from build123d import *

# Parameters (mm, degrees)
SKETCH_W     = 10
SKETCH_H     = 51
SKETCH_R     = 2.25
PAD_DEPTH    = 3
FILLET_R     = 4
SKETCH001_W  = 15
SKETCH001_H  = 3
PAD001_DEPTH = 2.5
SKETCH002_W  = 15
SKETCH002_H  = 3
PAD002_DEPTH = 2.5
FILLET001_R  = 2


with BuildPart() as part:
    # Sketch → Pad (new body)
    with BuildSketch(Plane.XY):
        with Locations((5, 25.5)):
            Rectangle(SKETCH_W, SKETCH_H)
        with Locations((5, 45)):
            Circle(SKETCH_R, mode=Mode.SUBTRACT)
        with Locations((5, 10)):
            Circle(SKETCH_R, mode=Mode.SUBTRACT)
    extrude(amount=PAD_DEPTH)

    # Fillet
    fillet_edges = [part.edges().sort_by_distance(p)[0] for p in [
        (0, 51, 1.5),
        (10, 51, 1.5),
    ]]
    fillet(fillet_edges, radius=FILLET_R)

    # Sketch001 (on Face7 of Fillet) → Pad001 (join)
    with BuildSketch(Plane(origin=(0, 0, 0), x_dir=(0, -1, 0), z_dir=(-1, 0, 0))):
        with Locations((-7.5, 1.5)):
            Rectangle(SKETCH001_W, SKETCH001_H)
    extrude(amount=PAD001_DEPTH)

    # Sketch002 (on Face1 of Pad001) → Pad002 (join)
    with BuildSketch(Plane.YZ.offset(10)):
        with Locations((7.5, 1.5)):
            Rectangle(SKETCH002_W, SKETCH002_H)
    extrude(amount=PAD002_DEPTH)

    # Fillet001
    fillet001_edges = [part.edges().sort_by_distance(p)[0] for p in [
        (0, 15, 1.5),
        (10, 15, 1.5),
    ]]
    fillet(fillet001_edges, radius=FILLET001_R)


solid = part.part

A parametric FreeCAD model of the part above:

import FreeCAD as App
import Part
import Sketcher
Q = App.Units.Quantity


def edges_at(feature, points):
    """Names of the edges that pass closest to the given points."""
    edges = feature.Shape.Edges
    near = lambda p: min(range(len(edges)), key=lambda i: edges[i].distToShape(Part.Vertex(*p))[0])
    return sorted({f"Edge{near(p) + 1}" for p in points})


def add_polygon(sketch, points):
    """Adds a closed chain of lines whose ends are joined by coincident constraints."""
    first, n = sketch.GeometryCount, len(points)
    for a, b in zip(points, points[1:] + points[:1]):
        sketch.addGeometry(Part.LineSegment(App.Vector(*a, 0), App.Vector(*b, 0)), False)
    for i in range(n):
        sketch.addConstraint(Sketcher.Constraint("Coincident", first + i, 2, first + (i + 1) % n, 1))

doc = App.newDocument("Part")
params = doc.addObject("Spreadsheet::Sheet", "Params")
for row, (alias, value) in enumerate([
    ("sketch1_diameter", "4.5 mm"),
    ("sketch1_width", "10 mm"),
    ("sketch1_height", "51 mm"),
    ("pad1_length", "3 mm"),
    ("fillet_radius", "4 mm"),
    ("sketch2_width", "15 mm"),
    ("sketch2_height", "3 mm"),
    ("pad2_length", "2.5 mm"),
    ("sketch3_width", "15 mm"),
    ("sketch3_height", "3 mm"),
    ("pad3_length", "2.5 mm"),
    ("fillet2_radius", "2 mm"),
], start=1):
    params.set(f"A{row}", alias)
    params.set(f"B{row}", "=" + value)
    params.setAlias(f"B{row}", alias)

body = doc.addObject("PartDesign::Body", "Body")

# Sketch on XY plane
sketch1 = body.newObject("Sketcher::SketchObject", "Sketch")
sketch1.AttachmentSupport = (doc.getObject("XY_Plane"), [""])
sketch1.MapMode = "FlatFace"
add_polygon(sketch1, [(0, 51), (0, 0), (10, 0), (10, 51)])  # lines 0-3
sketch1.addGeometry(Part.Circle(App.Vector(5, 10, 0), App.Vector(0, 0, 1), 2.25), False)  # 4
sketch1.addGeometry(Part.Circle(App.Vector(5, 45, 0), App.Vector(0, 0, 1), 2.25), False)  # 5
sketch1.addConstraint([
    Sketcher.Constraint("Vertical", 0),
    Sketcher.Constraint("Horizontal", 1),
    Sketcher.Constraint("Vertical", 2),
    Sketcher.Constraint("Horizontal", 3),
    Sketcher.Constraint("Coincident", 0, 2, -1, 1),
    Sketcher.Constraint("Equal", 4, 5),
    Sketcher.Constraint("Vertical", 4, 3, 5, 3),
    Sketcher.Constraint("Diameter", 4, Q("4.5 mm")),
    Sketcher.Constraint("DistanceX", 1, 1, 1, 2, Q("10 mm")),
    Sketcher.Constraint("DistanceY", 0, 2, 0, 1, Q("51 mm")),
    Sketcher.Constraint("DistanceX", -1, 1, 4, 3, Q("5 mm")),
    Sketcher.Constraint("DistanceY", -1, 1, 4, 3, Q("10 mm")),
    Sketcher.Constraint("DistanceY", -1, 1, 5, 3, Q("45 mm")),
])
sketch1.setExpression("Constraints[11]", "Params.sketch1_diameter")
sketch1.setExpression("Constraints[12]", "Params.sketch1_width")
sketch1.setExpression("Constraints[13]", "Params.sketch1_height")
pad1 = body.newObject("PartDesign::Pad", "Pad")
pad1.Profile = sketch1
pad1.setExpression("Length", "Params.pad1_length")
doc.recompute()

fillet = body.newObject("PartDesign::Fillet", "Fillet")
fillet.Base = (pad1, edges_at(pad1, [(0, 51, 1.5), (10, 51, 1.5)]))
fillet.setExpression("Radius", "Params.fillet_radius")

# Sketch on YZ plane
sketch2 = body.newObject("Sketcher::SketchObject", "Sketch001")
sketch2.AttachmentSupport = (doc.getObject("YZ_Plane"), [""])
sketch2.MapMode = "FlatFace"
add_polygon(sketch2, [(15, 3), (15, 0), (0, 0), (0, 3)])  # lines 0-3
sketch2.addConstraint([
    Sketcher.Constraint("Vertical", 0),
    Sketcher.Constraint("Horizontal", 1),
    Sketcher.Constraint("Vertical", 2),
    Sketcher.Constraint("Horizontal", 3),
    Sketcher.Constraint("Coincident", 1, 2, -1, 1),
    Sketcher.Constraint("DistanceX", 1, 2, 1, 1, Q("15 mm")),
    Sketcher.Constraint("DistanceY", 0, 2, 0, 1, Q("3 mm")),
])
sketch2.setExpression("Constraints[9]", "Params.sketch2_width")
sketch2.setExpression("Constraints[10]", "Params.sketch2_height")
pad2 = body.newObject("PartDesign::Pad", "Pad001")
pad2.Profile = sketch2
pad2.setExpression("Length", "Params.pad2_length")
pad2.Reversed = True

# Sketch on YZ plane
sketch3 = body.newObject("Sketcher::SketchObject", "Sketch002")
sketch3.AttachmentSupport = (doc.getObject("YZ_Plane"), [""])
sketch3.MapMode = "FlatFace"
sketch3.AttachmentOffset = App.Placement(App.Vector(0, 0, 10), App.Rotation())
add_polygon(sketch3, [(0, 3), (0, 0), (15, 0), (15, 3)])  # lines 0-3
sketch3.addConstraint([
    Sketcher.Constraint("Vertical", 0),
    Sketcher.Constraint("Horizontal", 1),
    Sketcher.Constraint("Vertical", 2),
    Sketcher.Constraint("Horizontal", 3),
    Sketcher.Constraint("Coincident", 0, 2, -1, 1),
    Sketcher.Constraint("DistanceX", 1, 1, 1, 2, Q("15 mm")),
    Sketcher.Constraint("DistanceY", 0, 2, 0, 1, Q("3 mm")),
])
sketch3.setExpression("Constraints[9]", "Params.sketch3_width")
sketch3.setExpression("Constraints[10]", "Params.sketch3_height")
pad3 = body.newObject("PartDesign::Pad", "Pad002")
pad3.Profile = sketch3
pad3.setExpression("Length", "Params.pad3_length")
doc.recompute()

fillet2 = body.newObject("PartDesign::Fillet", "Fillet001")
fillet2.Base = (pad3, edges_at(pad3, [(0, 15, 1.5), (10, 15, 1.5)]))
fillet2.setExpression("Radius", "Params.fillet2_radius")

doc.recompute()
